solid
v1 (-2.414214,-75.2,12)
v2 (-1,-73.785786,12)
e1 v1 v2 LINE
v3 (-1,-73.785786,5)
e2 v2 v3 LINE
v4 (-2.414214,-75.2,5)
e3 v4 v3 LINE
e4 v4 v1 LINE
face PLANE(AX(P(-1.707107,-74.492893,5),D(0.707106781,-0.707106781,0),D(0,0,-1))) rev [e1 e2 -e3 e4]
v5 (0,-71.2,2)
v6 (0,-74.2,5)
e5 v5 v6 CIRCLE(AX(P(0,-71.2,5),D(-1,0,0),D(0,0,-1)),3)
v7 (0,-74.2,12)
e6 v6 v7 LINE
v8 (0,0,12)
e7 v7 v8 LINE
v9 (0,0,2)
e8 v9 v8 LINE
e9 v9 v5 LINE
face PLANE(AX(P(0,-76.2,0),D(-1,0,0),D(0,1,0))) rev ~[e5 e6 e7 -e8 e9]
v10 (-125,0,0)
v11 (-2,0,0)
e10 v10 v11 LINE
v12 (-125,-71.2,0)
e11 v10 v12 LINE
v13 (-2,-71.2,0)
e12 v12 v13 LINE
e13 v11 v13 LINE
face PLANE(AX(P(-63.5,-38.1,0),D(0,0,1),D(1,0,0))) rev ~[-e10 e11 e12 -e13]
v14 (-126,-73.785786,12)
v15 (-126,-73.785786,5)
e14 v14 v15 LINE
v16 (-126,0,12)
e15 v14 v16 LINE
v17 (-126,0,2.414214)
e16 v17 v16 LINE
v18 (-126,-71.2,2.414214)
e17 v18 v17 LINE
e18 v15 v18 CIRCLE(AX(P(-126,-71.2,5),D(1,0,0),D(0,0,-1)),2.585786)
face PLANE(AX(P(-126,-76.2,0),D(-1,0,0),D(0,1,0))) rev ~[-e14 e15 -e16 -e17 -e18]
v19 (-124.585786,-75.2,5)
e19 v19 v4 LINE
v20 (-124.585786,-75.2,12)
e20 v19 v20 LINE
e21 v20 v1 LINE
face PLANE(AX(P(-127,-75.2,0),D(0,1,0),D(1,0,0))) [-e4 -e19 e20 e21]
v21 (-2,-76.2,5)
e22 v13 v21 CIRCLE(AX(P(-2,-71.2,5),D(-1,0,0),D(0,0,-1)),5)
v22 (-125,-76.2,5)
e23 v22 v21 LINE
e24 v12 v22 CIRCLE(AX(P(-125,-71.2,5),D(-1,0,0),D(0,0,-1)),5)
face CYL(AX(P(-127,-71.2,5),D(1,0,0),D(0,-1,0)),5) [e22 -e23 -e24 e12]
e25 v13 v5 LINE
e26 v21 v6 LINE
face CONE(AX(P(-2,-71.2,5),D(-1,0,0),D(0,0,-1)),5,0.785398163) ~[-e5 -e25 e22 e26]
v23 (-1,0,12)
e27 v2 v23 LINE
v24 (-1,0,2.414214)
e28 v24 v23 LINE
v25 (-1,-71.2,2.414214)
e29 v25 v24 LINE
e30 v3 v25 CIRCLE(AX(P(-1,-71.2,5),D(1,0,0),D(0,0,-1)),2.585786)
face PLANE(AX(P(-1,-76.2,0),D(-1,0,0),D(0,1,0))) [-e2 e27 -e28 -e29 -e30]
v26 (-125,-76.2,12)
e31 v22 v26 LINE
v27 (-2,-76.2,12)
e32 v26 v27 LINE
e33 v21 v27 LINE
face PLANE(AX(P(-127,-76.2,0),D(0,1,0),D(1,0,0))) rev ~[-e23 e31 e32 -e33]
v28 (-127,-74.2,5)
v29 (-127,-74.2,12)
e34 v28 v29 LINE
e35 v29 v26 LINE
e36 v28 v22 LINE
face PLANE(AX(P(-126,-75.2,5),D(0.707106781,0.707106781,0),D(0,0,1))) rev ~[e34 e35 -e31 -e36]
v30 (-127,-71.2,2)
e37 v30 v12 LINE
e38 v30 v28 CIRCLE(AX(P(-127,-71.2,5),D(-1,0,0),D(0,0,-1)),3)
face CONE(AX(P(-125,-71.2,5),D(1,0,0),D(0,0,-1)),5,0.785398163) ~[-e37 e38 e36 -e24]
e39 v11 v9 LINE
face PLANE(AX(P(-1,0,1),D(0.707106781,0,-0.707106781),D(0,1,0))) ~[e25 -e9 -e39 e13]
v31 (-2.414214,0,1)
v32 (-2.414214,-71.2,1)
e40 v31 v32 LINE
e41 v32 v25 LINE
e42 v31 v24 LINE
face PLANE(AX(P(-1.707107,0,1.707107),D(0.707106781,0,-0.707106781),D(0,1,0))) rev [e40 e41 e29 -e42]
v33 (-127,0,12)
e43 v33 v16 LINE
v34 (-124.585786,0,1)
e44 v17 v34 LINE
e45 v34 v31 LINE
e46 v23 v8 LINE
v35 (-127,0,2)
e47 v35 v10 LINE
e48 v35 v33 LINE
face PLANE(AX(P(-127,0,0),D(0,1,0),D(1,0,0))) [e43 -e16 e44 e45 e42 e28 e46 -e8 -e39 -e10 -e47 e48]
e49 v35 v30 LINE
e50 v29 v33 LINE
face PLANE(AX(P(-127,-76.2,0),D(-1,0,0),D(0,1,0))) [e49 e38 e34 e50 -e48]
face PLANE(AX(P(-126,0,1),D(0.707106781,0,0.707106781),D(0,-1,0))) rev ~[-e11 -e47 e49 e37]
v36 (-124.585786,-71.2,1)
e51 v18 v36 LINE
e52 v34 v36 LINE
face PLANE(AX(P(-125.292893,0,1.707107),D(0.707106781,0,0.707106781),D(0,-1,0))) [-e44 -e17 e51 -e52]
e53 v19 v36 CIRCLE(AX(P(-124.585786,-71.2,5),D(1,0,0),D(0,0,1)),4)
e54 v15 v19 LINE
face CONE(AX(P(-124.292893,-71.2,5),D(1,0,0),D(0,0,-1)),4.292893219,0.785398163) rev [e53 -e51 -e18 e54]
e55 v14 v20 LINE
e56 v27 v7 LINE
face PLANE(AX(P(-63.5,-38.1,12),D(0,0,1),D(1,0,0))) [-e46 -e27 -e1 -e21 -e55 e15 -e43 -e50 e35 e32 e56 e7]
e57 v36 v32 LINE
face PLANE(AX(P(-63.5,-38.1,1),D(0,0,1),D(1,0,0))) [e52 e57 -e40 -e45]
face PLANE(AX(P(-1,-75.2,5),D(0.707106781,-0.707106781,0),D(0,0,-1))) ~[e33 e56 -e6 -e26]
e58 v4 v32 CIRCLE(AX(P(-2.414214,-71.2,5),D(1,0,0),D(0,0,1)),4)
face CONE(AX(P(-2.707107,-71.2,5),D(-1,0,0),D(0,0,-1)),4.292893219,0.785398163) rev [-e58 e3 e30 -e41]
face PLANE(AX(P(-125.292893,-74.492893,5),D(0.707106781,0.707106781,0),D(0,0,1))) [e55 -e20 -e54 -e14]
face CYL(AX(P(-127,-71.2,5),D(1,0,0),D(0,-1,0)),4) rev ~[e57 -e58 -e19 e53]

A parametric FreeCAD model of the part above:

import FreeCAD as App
import Part
import Sketcher
from FreeCAD import Vector
Q = App.Units.Quantity


def edges_at(feature, points):
    """Names of the edges that pass closest to the given points."""
    edges = feature.Shape.Edges
    near = lambda p: min(range(len(edges)), key=lambda i: edges[i].distToShape(Part.Vertex(*p))[0])
    return sorted({f"Edge{near(p) + 1}" for p in points})


def faces_at(feature, points):
    """Names of the faces that lie closest to the given points."""
    faces = feature.Shape.Faces
    near = lambda p: min(range(len(faces)), key=lambda i: faces[i].distToShape(Part.Vertex(*p))[0])
    return sorted({f"Face{near(p) + 1}" for p in points})

doc = App.newDocument("Part")
params = doc.addObject("Spreadsheet::Sheet", "Params")
for row, (alias, value) in enumerate([
    ("sketch1_width", "127 mm"),
    ("sketch1_height", "76.2 mm"),
    ("pad1_length", "12 mm"),
    ("fillet_radius", "5 mm"),
    ("chamfer_size", "2 mm"),
    ("thickness_wall", "1 mm"),
], start=1):
    params.set(f"A{row}", alias)
    params.set(f"B{row}", "=" + value)
    params.setAlias(f"B{row}", alias)

body = doc.addObject("PartDesign::Body", "Body")

# Sketch on XY plane
sketch1 = doc.addObject("Sketcher::SketchObject", "Sketch")
body.addObject(sketch1)
sketch1.AttachmentSupport = (doc.XY_Plane, [""])
sketch1.MapMode = "FlatFace"
sketch1.addGeometry(Part.LineSegment(Vector(-127, 0, 0), Vector(-127, -76, 0)), False)
sketch1.addGeometry(Part.LineSegment(Vector(-127, -76, 0), Vector(0, -76, 0)), False)
sketch1.addGeometry(Part.LineSegment(Vector(0, -76, 0), Vector(0, 0, 0)), False)
sketch1.addGeometry(Part.LineSegment(Vector(0, 0, 0), Vector(-127, 0, 0)), False)
sketch1.addConstraint(Sketcher.Constraint("Coincident", 0, 2, 1, 1))
sketch1.addConstraint(Sketcher.Constraint("Coincident", 1, 2, 2, 1))
sketch1.addConstraint(Sketcher.Constraint("Coincident", 2, 2, 3, 1))
sketch1.addConstraint(Sketcher.Constraint("Coincident", 3, 2, 0, 1))
sketch1.addConstraint(Sketcher.Constraint("Vertical", 0))
sketch1.addConstraint(Sketcher.Constraint("Horizontal", 1))
sketch1.addConstraint(Sketcher.Constraint("Vertical", 2))
sketch1.addConstraint(Sketcher.Constraint("Horizontal", 3))
sketch1.addConstraint(Sketcher.Constraint("Coincident", 2, 2, -1, 1))
sketch1.addConstraint(Sketcher.Constraint("DistanceX", 1, 1, 1, 2, Q("127 mm")))
sketch1.addConstraint(Sketcher.Constraint("DistanceY", 0, 2, 0, 1, Q("76.2 mm")))
sketch1.setExpression("Constraints[9]", "Params.sketch1_width")
sketch1.setExpression("Constraints[10]", "Params.sketch1_height")
pad1 = doc.addObject("PartDesign::Pad", "Pad")
body.addObject(pad1)
pad1.Profile = sketch1
pad1.setExpression("Length", "Params.pad1_length")
doc.recompute()

fillet = doc.addObject("PartDesign::Fillet", "Fillet")
body.addObject(fillet)
fillet.Base = (pad1, edges_at(pad1, [(-63.5, -76.2, 0)]))
fillet.setExpression("Radius", "Params.fillet_radius")
doc.recompute()

chamfer = doc.addObject("PartDesign::Chamfer", "Chamfer")
body.addObject(chamfer)
chamfer.Base = (fillet, edges_at(fillet, [(0, -76.2, 8.5), (-127, -76.2, 8.5)]))
chamfer.setExpression("Size", "Params.chamfer_size")
doc.recompute()

thickness = doc.addObject("PartDesign::Thickness", "Thickness")
body.addObject(thickness)
thickness.Base = (chamfer, faces_at(chamfer, [(-63.5, -38.1, 12), (-63.5, 0, 6)]))
thickness.setExpression("Value", "Params.thickness_wall")
thickness.Reversed = True
thickness.Join = "Arc"

doc.recompute()
